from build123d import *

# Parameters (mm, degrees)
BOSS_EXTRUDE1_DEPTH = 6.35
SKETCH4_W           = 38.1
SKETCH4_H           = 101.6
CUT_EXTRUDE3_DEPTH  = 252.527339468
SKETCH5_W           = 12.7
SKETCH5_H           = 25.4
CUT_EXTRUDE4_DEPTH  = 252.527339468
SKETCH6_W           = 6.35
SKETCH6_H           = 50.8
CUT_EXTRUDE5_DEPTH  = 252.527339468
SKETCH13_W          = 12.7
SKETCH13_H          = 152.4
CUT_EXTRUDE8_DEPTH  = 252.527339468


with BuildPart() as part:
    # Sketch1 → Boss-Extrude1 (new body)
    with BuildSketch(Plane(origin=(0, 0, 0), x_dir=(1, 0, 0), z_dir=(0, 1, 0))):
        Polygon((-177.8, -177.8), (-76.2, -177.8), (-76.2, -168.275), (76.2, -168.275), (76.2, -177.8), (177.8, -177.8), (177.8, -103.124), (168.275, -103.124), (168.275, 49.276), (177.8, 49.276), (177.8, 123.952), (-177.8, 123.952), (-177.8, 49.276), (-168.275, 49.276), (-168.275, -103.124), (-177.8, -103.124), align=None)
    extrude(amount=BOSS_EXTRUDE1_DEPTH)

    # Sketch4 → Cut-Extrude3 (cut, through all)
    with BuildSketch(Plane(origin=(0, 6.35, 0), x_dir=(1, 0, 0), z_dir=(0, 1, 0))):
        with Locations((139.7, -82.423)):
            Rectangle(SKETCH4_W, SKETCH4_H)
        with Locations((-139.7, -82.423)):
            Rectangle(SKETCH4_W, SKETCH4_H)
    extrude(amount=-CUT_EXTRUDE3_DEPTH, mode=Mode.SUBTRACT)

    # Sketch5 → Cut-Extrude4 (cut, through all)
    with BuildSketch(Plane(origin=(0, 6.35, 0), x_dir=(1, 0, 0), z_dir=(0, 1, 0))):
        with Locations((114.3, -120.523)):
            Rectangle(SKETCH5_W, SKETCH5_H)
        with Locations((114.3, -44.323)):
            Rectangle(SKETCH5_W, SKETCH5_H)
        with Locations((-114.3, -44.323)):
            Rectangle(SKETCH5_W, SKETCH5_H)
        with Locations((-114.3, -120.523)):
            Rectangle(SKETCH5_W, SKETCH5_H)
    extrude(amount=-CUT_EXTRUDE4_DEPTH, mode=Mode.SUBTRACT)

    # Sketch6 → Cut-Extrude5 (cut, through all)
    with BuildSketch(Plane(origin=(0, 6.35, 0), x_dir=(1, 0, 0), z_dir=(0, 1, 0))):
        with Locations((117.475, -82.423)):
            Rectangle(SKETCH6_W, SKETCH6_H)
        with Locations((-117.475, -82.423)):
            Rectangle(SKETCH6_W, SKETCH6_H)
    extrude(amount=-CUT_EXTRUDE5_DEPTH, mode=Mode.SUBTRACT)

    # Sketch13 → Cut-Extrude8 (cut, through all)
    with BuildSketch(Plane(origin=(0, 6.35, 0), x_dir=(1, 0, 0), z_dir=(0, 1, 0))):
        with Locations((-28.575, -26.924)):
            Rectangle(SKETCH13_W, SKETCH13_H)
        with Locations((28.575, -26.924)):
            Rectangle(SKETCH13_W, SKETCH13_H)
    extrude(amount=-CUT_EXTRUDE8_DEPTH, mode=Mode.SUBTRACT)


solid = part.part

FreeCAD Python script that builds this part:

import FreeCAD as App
import Part
import Sketcher

V = App.Vector
Q = App.Units.Quantity


def add_polygon(sketch, points):
    """Adds a closed chain of lines whose ends are joined by coincident constraints."""
    first, n = sketch.GeometryCount, len(points)
    for a, b in zip(points, points[1:] + points[:1]):
        sketch.addGeometry(Part.LineSegment(App.Vector(*a, 0), App.Vector(*b, 0)), False)
    for i in range(n):
        sketch.addConstraint(Sketcher.Constraint("Coincident", first + i, 2, first + (i + 1) % n, 1))

doc = App.newDocument("Part")
body = doc.addObject("PartDesign::Body", "Body")

# Sketch on XZ plane
sketch1 = body.newObject("Sketcher::SketchObject", "Sketch")
sketch1.AttachmentSupport = (doc.getObject("XZ_Plane"), [""])
sketch1.MapMode = "FlatFace"
add_polygon(sketch1, [(-178, 178), (-76, 178), (-76, 168), (76, 168), (76, 178), (178, 178), (178, 103), (168, 103), (168, -49), (178, -49), (178, -124), (-178, -124), (-178, -49), (-168, -49), (-168, 103), (-178, 103)])  # lines 0-15
sketch1.addConstraint([
    Sketcher.Constraint("Horizontal", 0),
    Sketcher.Constraint("Vertical", 1),
    Sketcher.Constraint("Horizontal", 2),
    Sketcher.Constraint("Vertical", 3),
    Sketcher.Constraint("Horizontal", 4),
    Sketcher.Constraint("Vertical", 5),
    Sketcher.Constraint("Horizontal", 6),
    Sketcher.Constraint("Vertical", 7),
    Sketcher.Constraint("Horizontal", 8),
    Sketcher.Constraint("Vertical", 9),
    Sketcher.Constraint("Horizontal", 10),
    Sketcher.Constraint("Vertical", 11),
    Sketcher.Constraint("Horizontal", 12),
    Sketcher.Constraint("Vertical", 13),
    Sketcher.Constraint("Horizontal", 14),
    Sketcher.Constraint("Vertical", 15),
    Sketcher.Constraint("Symmetric", 0, 2, 3, 2, -2),
    Sketcher.Constraint("Symmetric", 8, 2, 11, 2, -2),
    Sketcher.Constraint("Symmetric", 6, 2, 13, 2, -2),
    Sketcher.Constraint("Vertical", 5, 2, 8, 2),
    Sketcher.Constraint("Vertical", 11, 2, 14, 2),
    Sketcher.Constraint("Equal", 14, 1),
    Sketcher.Constraint("Equal", 2, 7),
    Sketcher.Constraint("Equal", 5, 9),
    Sketcher.Constraint("DistanceX", 0, 1, 0, 2, Q("4 in")),
    Sketcher.Constraint("DistanceX", 2, 1, 2, 2, Q("6 in")),
    Sketcher.Constraint("DistanceY", -1, 1, 0, 2, Q("7 in")),
    Sketcher.Constraint("DistanceY", 5, 2, 5, 1, Q("2.94 in")),
    Sketcher.Constraint("DistanceX", 6, 2, 6, 1, Q("0.375 in")),
])
pad1 = body.newObject("PartDesign::Pad", "Pad")
pad1.Profile = sketch1
pad1.Length = Q("0.25 in")
pad1.Reversed = True

# Sketch on XZ plane
sketch2 = body.newObject("Sketcher::SketchObject", "Sketch001")
sketch2.AttachmentSupport = (doc.getObject("XZ_Plane"), [""])
sketch2.MapMode = "FlatFace"
sketch2.AttachmentOffset = App.Placement(V(0, 0, -0.25 * 25.4), App.Rotation())
add_polygon(sketch2, [(121, 32), (121, 133), (159, 133), (159, 32)])  # lines 0-3
add_polygon(sketch2, [(-159, 32), (-159, 133), (-121, 133), (-121, 32)])  # lines 4-7
sketch2.addConstraint([
    Sketcher.Constraint("Vertical", 0),
    Sketcher.Constraint("Horizontal", 1),
    Sketcher.Constraint("Vertical", 2),
    Sketcher.Constraint("Horizontal", 3),
    Sketcher.Constraint("Vertical", 4),
    Sketcher.Constraint("Horizontal", 5),
    Sketcher.Constraint("Vertical", 6),
    Sketcher.Constraint("Horizontal", 7),
    Sketcher.Constraint("Symmetric", 1, 2, 4, 2, -2),
    Sketcher.Constraint("Symmetric", 3, 2, 6, 2, -2),
    Sketcher.Constraint("DistanceY", 0, 1, 0, 2, Q("4 in")),
    Sketcher.Constraint("DistanceX", 1, 1, 1, 2, Q("1.5 in")),
    Sketcher.Constraint("DistanceX", 4, 2, 0, 2, Q("11 in")),
    Sketcher.Constraint("DistanceY", -1, 1, 0, 2, Q("5.245 in")),
])
pocket1 = body.newObject("PartDesign::Pocket", "Pocket")
pocket1.Profile = sketch2
pocket1.Type = "ThroughAll"
pocket1.Reversed = True

# Sketch on XZ plane
sketch3 = body.newObject("Sketcher::SketchObject", "Sketch002")
sketch3.AttachmentSupport = (doc.getObject("XZ_Plane"), [""])
sketch3.MapMode = "FlatFace"
sketch3.AttachmentOffset = App.Placement(V(0, 0, -0.25 * 25.4), App.Rotation())
add_polygon(sketch3, [(108, 108), (108, 133), (121, 133), (121, 108)])  # lines 0-3
add_polygon(sketch3, [(108, 32), (108, 57), (121, 57), (121, 32)])  # lines 4-7
add_polygon(sketch3, [(-121, 32), (-121, 57), (-108, 57), (-108, 32)])  # lines 8-11
add_polygon(sketch3, [(-121, 108), (-121, 133), (-108, 133), (-108, 108)])  # lines 12-15
sketch3.addConstraint([
    Sketcher.Constraint("Vertical", 0),
    Sketcher.Constraint("Horizontal", 1),
    Sketcher.Constraint("Vertical", 2),
    Sketcher.Constraint("Horizontal", 3),
    Sketcher.Constraint("Vertical", 4),
    Sketcher.Constraint("Horizontal", 5),
    Sketcher.Constraint("Vertical", 6),
    Sketcher.Constraint("Horizontal", 7),
    Sketcher.Constraint("Vertical", 8),
    Sketcher.Constraint("Horizontal", 9),
    Sketcher.Constraint("Vertical", 10),
    Sketcher.Constraint("Horizontal", 11),
    Sketcher.Constraint("Vertical", 12),
    Sketcher.Constraint("Horizontal", 13),
    Sketcher.Constraint("Vertical", 14),
    Sketcher.Constraint("Horizontal", 15),
    Sketcher.Constraint("Symmetric", 5, 2, 8, 2, -2),
    Sketcher.Constraint("Symmetric", 7, 2, 10, 2, -2),
    Sketcher.Constraint("Symmetric", 1, 2, 12, 2, -2),
    Sketcher.Constraint("Symmetric", 3, 2, 14, 2, -2),
    Sketcher.Constraint("Vertical", 3, 2, 4, 2),
    Sketcher.Constraint("Vertical", 2, 2, 5, 2),
    Sketcher.Constraint("Equal", 2, 4),
    Sketcher.Constraint("DistanceY", 0, 1, 0, 2, Q("1 in")),
    Sketcher.Constraint("DistanceX", 1, 1, 1, 2, Q("0.5 in")),
    Sketcher.Constraint("DistanceY", 4, 2, 3, 2, Q("2 in")),
    Sketcher.Constraint("DistanceX", 8, 2, 4, 2, Q("9 in")),
    Sketcher.Constraint("DistanceY", -1, 1, 0, 2, Q("5.245 in")),
])
pocket2 = body.newObject("PartDesign::Pocket", "Pocket001")
pocket2.Profile = sketch3
pocket2.Type = "ThroughAll"
pocket2.Reversed = True

# Sketch on XZ plane
sketch4 = body.newObject("Sketcher::SketchObject", "Sketch003")
sketch4.AttachmentSupport = (doc.getObject("XZ_Plane"), [""])
sketch4.MapMode = "FlatFace"
sketch4.AttachmentOffset = App.Placement(V(0, 0, -0.25 * 25.4), App.Rotation())
add_polygon(sketch4, [(114, 57), (114, 108), (121, 108), (121, 57)])  # lines 0-3
add_polygon(sketch4, [(-121, 57), (-121, 108), (-114, 108), (-114, 57)])  # lines 4-7
sketch4.addConstraint([
    Sketcher.Constraint("Vertical", 0),
    Sketcher.Constraint("Horizontal", 1),
    Sketcher.Constraint("Vertical", 2),
    Sketcher.Constraint("Horizontal", 3),
    Sketcher.Constraint("Vertical", 4),
    Sketcher.Constraint("Horizontal", 5),
    Sketcher.Constraint("Vertical", 6),
    Sketcher.Constraint("Horizontal", 7),
    Sketcher.Constraint("Symmetric", 1, 2, 4, 2, -2),
    Sketcher.Constraint("Symmetric", 3, 2, 6, 2, -2),
    Sketcher.Constraint("DistanceY", 0, 1, 0, 2, Q("2 in")),
    Sketcher.Constraint("DistanceX", 5, 2, 0, 2, Q("9 in")),
    Sketcher.Constraint("DistanceX", 1, 1, 1, 2, Q("0.25 in")),
    Sketcher.Constraint("DistanceY", -1, 1, 0, 2, Q("4.245 in")),
])
pocket3 = body.newObject("PartDesign::Pocket", "Pocket002")
pocket3.Profile = sketch4
pocket3.Type = "ThroughAll"
pocket3.Reversed = True

# Sketch on XZ plane
sketch5 = body.newObject("Sketcher::SketchObject", "Sketch004")
sketch5.AttachmentSupport = (doc.getObject("XZ_Plane"), [""])
sketch5.MapMode = "FlatFace"
sketch5.AttachmentOffset = App.Placement(V(0, 0, -0.25 * 25.4), App.Rotation())
add_polygon(sketch5, [(-35, -49), (-35, 103), (-22, 103), (-22, -49)])  # lines 0-3
add_polygon(sketch5, [(22, -49), (22, 103), (35, 103), (35, -49)])  # lines 4-7
sketch5.addConstraint([
    Sketcher.Constraint("Vertical", 0),
    Sketcher.Constraint("Horizontal", 1),
    Sketcher.Constraint("Vertical", 2),
    Sketcher.Constraint("Horizontal", 3),
    Sketcher.Constraint("Vertical", 4),
    Sketcher.Constraint("Horizontal", 5),
    Sketcher.Constraint("Vertical", 6),
    Sketcher.Constraint("Horizontal", 7),
    Sketcher.Constraint("Symmetric", 1, 2, 4, 2, -2),
    Sketcher.Constraint("Symmetric", 3, 2, 6, 2, -2),
    Sketcher.Constraint("DistanceY", 0, 1, 0, 2, Q("6 in")),
    Sketcher.Constraint("DistanceX", 1, 1, 1, 2, Q("0.5 in")),
    Sketcher.Constraint("DistanceY", -1, 1, 0, 2, Q("4.06 in")),
    Sketcher.Constraint("DistanceX", 1, 2, 4, 2, Q("1.75 in")),
])
pocket4 = body.newObject("PartDesign::Pocket", "Pocket003")
pocket4.Profile = sketch5
pocket4.Type = "ThroughAll"
pocket4.Reversed = True

doc.recompute()
